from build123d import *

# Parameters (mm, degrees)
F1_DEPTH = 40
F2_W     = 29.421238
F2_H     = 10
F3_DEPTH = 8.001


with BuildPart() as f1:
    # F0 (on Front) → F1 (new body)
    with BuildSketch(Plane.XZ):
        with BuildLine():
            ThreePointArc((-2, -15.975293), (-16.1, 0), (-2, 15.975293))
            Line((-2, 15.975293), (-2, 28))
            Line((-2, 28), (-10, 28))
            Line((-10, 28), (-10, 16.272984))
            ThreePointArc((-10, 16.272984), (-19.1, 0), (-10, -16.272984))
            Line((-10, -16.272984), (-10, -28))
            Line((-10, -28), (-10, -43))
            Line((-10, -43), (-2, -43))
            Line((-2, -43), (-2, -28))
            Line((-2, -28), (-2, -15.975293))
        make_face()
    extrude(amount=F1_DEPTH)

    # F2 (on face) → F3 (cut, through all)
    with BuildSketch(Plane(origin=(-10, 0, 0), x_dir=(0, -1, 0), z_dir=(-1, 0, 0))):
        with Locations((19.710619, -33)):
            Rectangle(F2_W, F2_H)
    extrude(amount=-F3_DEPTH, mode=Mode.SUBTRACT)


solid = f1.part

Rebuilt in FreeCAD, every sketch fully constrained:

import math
import FreeCAD as App
import Part
import Sketcher

V = App.Vector

doc = App.newDocument("Part")
body = doc.addObject("PartDesign::Body", "Body")

sketch1 = body.newObject("Sketcher::SketchObject", "Sketch")
sketch1.AttachmentSupport = (doc.getObject("XZ_Plane"), [""])
sketch1.MapMode = "FlatFace"
sketch1.addGeometry([
    Part.ArcOfCircle(Part.Circle(V(0, 0, 0), V(0, 0, 1), 16), math.radians(97), math.radians(263)),
    Part.LineSegment(V(-2, 16, 0), V(-2, 28, 0)),
    Part.LineSegment(V(-2, 28, 0), V(-10, 28, 0)),
    Part.LineSegment(V(-10, 28, 0), V(-10, 16, 0)),
    Part.ArcOfCircle(Part.Circle(V(0, 0, 0), V(0, 0, 1), 19), math.radians(122), math.radians(238)),
    Part.LineSegment(V(-10, -16, 0), V(-10, -43, 0)),
    Part.LineSegment(V(-10, -43, 0), V(-2, -43, 0)),
    Part.LineSegment(V(-2, -43, 0), V(-2, -16, 0)),
], False)
sketch1.addConstraint([
    Sketcher.Constraint("Coincident", 0, 1, 1, 1),
    Sketcher.Constraint("Coincident", 1, 2, 2, 1),
    Sketcher.Constraint("Coincident", 2, 2, 3, 1),
    Sketcher.Constraint("Coincident", 3, 2, 4, 1),
    Sketcher.Constraint("Coincident", 4, 2, 5, 1),
    Sketcher.Constraint("Coincident", 5, 2, 6, 1),
    Sketcher.Constraint("Coincident", 6, 2, 7, 1),
    Sketcher.Constraint("Coincident", 7, 2, 0, 2),
    Sketcher.Constraint("Vertical", 1),
    Sketcher.Constraint("Horizontal", 2),
    Sketcher.Constraint("Vertical", 3),
    Sketcher.Constraint("Vertical", 5),
    Sketcher.Constraint("Horizontal", 6),
    Sketcher.Constraint("Vertical", 7),
    Sketcher.Constraint("Coincident", 0, 3, -1, 1),
    Sketcher.Constraint("Coincident", 4, 3, -1, 1),
    Sketcher.Constraint("Vertical", 3, 2, 4, 2),
    Sketcher.Constraint("Vertical", 1, 2, 6, 2),
    Sketcher.Constraint("Radius", 0, 16.1),
    Sketcher.Constraint("Radius", 4, 19.1),
    Sketcher.Constraint("DistanceX", 2, 2, 2, 1, 8.0),
    Sketcher.Constraint("DistanceX", 0, 1, -1, 1, 2.0),
    Sketcher.Constraint("DistanceY", -1, 1, 1, 2, 28.0),
    Sketcher.Constraint("DistanceY", 5, 2, -1, 1, 43.0),
])
pad1 = body.newObject("PartDesign::Pad", "Pad")
pad1.Profile = sketch1
pad1.Length = 40

sketch2 = body.newObject("Sketcher::SketchObject", "Sketch001")
sketch2.AttachmentSupport = (doc.getObject("YZ_Plane"), [""])
sketch2.MapMode = "FlatFace"
sketch2.AttachmentOffset = App.Placement(V(0, 0, -10), App.Rotation())
sketch2.addGeometry([
    Part.LineSegment(V(-5, -28, 0), V(-5, -38, 0)),
    Part.LineSegment(V(-5, -38, 0), V(-34, -38, 0)),
    Part.LineSegment(V(-34, -38, 0), V(-34, -28, 0)),
    Part.LineSegment(V(-34, -28, 0), V(-5, -28, 0)),
], False)
sketch2.addConstraint([
    Sketcher.Constraint("Coincident", 0, 2, 1, 1),
    Sketcher.Constraint("Coincident", 1, 2, 2, 1),
    Sketcher.Constraint("Coincident", 2, 2, 3, 1),
    Sketcher.Constraint("Coincident", 3, 2, 0, 1),
    Sketcher.Constraint("Vertical", 0),
    Sketcher.Constraint("Horizontal", 1),
    Sketcher.Constraint("Vertical", 2),
    Sketcher.Constraint("Horizontal", 3),
    Sketcher.Constraint("DistanceY", 0, 2, 0, 1, 10.0),
    Sketcher.Constraint("DistanceX", 0, 2, -1, 1, 5.0),
    Sketcher.Constraint("DistanceY", 0, 2, -1, 1, 38.0),
    Sketcher.Constraint("DistanceX", 1, 2, 1, 1, 29.421238),
])
pocket1 = body.newObject("PartDesign::Pocket", "Pocket")
pocket1.Profile = sketch2
pocket1.Type = "ThroughAll"
pocket1.Reversed = True

doc.recompute()
